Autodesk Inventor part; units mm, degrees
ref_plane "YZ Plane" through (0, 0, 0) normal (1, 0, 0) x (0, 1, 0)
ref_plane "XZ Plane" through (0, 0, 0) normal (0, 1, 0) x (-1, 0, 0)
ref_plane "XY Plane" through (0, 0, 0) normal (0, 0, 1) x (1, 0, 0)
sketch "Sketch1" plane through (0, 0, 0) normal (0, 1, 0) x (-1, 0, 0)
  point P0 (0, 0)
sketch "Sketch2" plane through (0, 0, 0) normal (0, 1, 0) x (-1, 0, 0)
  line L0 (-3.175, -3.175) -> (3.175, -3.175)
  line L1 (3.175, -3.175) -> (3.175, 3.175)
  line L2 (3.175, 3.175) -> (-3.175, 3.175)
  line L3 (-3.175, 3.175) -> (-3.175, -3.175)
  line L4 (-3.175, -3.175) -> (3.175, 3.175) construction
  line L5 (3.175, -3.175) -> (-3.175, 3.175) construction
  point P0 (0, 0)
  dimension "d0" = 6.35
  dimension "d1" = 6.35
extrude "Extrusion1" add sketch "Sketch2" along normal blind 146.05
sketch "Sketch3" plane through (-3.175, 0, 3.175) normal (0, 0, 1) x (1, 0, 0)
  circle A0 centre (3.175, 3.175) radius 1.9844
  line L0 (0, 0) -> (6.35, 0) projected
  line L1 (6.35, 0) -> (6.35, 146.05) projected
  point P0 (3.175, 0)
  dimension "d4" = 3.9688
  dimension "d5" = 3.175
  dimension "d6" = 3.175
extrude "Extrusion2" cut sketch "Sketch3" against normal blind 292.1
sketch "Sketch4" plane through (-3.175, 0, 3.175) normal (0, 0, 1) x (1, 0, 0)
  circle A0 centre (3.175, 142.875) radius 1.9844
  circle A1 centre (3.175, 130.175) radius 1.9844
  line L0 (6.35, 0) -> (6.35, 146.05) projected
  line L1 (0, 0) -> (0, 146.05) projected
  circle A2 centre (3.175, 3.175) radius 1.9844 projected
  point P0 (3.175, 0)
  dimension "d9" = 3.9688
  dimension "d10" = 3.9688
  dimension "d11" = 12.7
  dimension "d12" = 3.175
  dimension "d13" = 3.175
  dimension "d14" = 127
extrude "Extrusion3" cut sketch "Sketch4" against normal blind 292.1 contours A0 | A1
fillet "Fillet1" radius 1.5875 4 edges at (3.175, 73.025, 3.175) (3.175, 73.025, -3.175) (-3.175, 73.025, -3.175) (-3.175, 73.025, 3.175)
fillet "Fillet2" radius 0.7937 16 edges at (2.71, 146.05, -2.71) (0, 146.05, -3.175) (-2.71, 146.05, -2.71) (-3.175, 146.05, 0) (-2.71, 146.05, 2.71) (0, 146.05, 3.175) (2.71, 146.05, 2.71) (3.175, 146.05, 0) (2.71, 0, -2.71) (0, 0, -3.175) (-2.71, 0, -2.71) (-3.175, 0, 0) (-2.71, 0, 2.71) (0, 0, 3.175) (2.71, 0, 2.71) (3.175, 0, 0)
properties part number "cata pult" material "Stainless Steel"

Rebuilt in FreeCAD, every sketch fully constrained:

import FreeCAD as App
import Part
import Sketcher
Q = App.Units.Quantity


def edges_at(feature, points):
    """Names of the edges that pass closest to the given points."""
    edges = feature.Shape.Edges
    near = lambda p: min(range(len(edges)), key=lambda i: edges[i].distToShape(Part.Vertex(*p))[0])
    return sorted({f"Edge{near(p) + 1}" for p in points})


def add_polygon(sketch, points):
    """Adds a closed chain of lines whose ends are joined by coincident constraints."""
    first, n = sketch.GeometryCount, len(points)
    for a, b in zip(points, points[1:] + points[:1]):
        sketch.addGeometry(Part.LineSegment(App.Vector(*a, 0), App.Vector(*b, 0)), False)
    for i in range(n):
        sketch.addConstraint(Sketcher.Constraint("Coincident", first + i, 2, first + (i + 1) % n, 1))

doc = App.newDocument("Part")
body = doc.addObject("PartDesign::Body", "Body")

# Sketch on XZ plane
sketch1 = body.newObject("Sketcher::SketchObject", "Sketch")
sketch1.AttachmentSupport = (doc.getObject("XZ_Plane"), [""])
sketch1.MapMode = "FlatFace"
add_polygon(sketch1, [(3, 3), (3, -3), (-3, -3), (-3, 3)])  # lines 0-3
sketch1.addConstraint(Sketcher.Constraint("Vertical", 0))
sketch1.addConstraint(Sketcher.Constraint("Horizontal", 1))
sketch1.addConstraint(Sketcher.Constraint("Vertical", 2))
sketch1.addConstraint(Sketcher.Constraint("Horizontal", 3))
sketch1.addConstraint(Sketcher.Constraint("Symmetric", 0, 2, 2, 2, -1, 1))
sketch1.addConstraint(Sketcher.Constraint("Equal", 3, 0))
sketch1.addConstraint(Sketcher.Constraint("DistanceX", 1, 2, 1, 1, Q("0.25 in")))
pad1 = body.newObject("PartDesign::Pad", "Pad")
pad1.Profile = sketch1
pad1.Length = Q("5.75 in")
pad1.Reversed = True

# Sketch on XY plane
sketch2 = body.newObject("Sketcher::SketchObject", "Sketch001")
sketch2.AttachmentSupport = (doc.getObject("XY_Plane"), [""])
sketch2.MapMode = "FlatFace"
sketch2.AttachmentOffset = App.Placement(App.Vector(0, 0, 0.125 * 25.4), App.Rotation())
sketch2.addGeometry(Part.Circle(App.Vector(0, 3.2, 0), App.Vector(0, 0, 1), 2), False)
sketch2.addConstraint(Sketcher.Constraint("PointOnObject", 0, 3, -2))
sketch2.addConstraint(Sketcher.Constraint("Diameter", 0, Q("0.156252 in")))
sketch2.addConstraint(Sketcher.Constraint("DistanceY", -1, 1, 0, 3, Q("0.125 in")))
pocket1 = body.newObject("PartDesign::Pocket", "Pocket")
pocket1.Profile = sketch2
pocket1.Length = Q("11.5 in")

# Sketch on XY plane
sketch3 = body.newObject("Sketcher::SketchObject", "Sketch002")
sketch3.AttachmentSupport = (doc.getObject("XY_Plane"), [""])
sketch3.MapMode = "FlatFace"
sketch3.AttachmentOffset = App.Placement(App.Vector(0, 0, 0.125 * 25.4), App.Rotation())
sketch3.addGeometry(Part.Circle(App.Vector(0, 142.9, 0), App.Vector(0, 0, 1), 2), False)
sketch3.addGeometry(Part.Circle(App.Vector(0, 130.2, 0), App.Vector(0, 0, 1), 2), False)
sketch3.addConstraint(Sketcher.Constraint("Equal", 0, 1))
sketch3.addConstraint(Sketcher.Constraint("PointOnObject", 0, 3, -2))
sketch3.addConstraint(Sketcher.Constraint("PointOnObject", 1, 3, -2))
sketch3.addConstraint(Sketcher.Constraint("Diameter", 0, Q("0.156252 in")))
sketch3.addConstraint(Sketcher.Constraint("DistanceY", 1, 3, 0, 3, Q("0.5 in")))
sketch3.addConstraint(Sketcher.Constraint("DistanceY", -1, 1, 0, 3, Q("5.625 in")))
pocket2 = body.newObject("PartDesign::Pocket", "Pocket001")
pocket2.Profile = sketch3
pocket2.Length = Q("11.5 in")
doc.recompute()

fillet = body.newObject("PartDesign::Fillet", "Fillet")
fillet.Base = (pocket2, edges_at(pocket2, [
    (3.175, 73.025, 3.175),
    (3.175, 73.025, -3.175),
    (-3.175, 73.025, -3.175),
    (-3.175, 73.025, 3.175),
]))
fillet.Radius = Q("0.0625 in")
doc.recompute()

fillet2 = body.newObject("PartDesign::Fillet", "Fillet001")
fillet2.Base = (fillet, edges_at(fillet, [
    (2.71, 146.05, -2.71),
    (0, 146.05, -3.175),
    (-2.71, 146.05, -2.71),
    (-3.175, 146.05, 0),
    (-2.71, 146.05, 2.71),
    (0, 146.05, 3.175),
    (2.71, 146.05, 2.71),
    (3.175, 146.05, 0),
    (2.71, 0, -2.71),
    (0, 0, -3.175),
    (-2.71, 0, -2.71),
    (-3.175, 0, 0),
    (-2.71, 0, 2.71),
    (0, 0, 3.175),
    (2.71, 0, 2.71),
    (3.175, 0, 0),
]))
fillet2.Radius = Q("0.031248 in")

doc.recompute()
